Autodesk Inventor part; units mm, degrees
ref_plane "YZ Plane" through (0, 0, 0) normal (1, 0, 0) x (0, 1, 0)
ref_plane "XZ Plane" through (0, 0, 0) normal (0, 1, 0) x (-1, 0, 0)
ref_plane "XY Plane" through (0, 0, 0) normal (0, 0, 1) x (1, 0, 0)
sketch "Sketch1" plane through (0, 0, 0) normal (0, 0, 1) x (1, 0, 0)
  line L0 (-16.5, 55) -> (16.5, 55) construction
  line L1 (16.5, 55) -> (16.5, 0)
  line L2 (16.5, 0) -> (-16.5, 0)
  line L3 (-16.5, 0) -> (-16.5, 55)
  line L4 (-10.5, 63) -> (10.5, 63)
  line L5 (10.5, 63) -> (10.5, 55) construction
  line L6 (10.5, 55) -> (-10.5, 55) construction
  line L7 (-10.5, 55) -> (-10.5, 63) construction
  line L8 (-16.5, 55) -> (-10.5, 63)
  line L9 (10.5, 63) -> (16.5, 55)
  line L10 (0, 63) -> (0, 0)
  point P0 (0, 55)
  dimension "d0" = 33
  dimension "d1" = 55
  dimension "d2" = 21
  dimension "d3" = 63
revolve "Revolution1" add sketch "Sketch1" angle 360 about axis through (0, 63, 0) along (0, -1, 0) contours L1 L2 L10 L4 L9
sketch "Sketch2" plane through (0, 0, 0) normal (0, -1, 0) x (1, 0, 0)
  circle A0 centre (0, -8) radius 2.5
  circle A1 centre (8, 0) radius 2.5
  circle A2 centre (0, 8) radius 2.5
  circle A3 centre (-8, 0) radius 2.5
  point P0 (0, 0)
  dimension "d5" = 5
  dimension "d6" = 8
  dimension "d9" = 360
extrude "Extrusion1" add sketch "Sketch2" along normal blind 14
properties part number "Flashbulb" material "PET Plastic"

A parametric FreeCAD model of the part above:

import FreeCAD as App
import Part
import Sketcher

V = App.Vector


def add_polygon(sketch, points):
    """Adds a closed chain of lines whose ends are joined by coincident constraints."""
    first, n = sketch.GeometryCount, len(points)
    for a, b in zip(points, points[1:] + points[:1]):
        sketch.addGeometry(Part.LineSegment(App.Vector(*a, 0), App.Vector(*b, 0)), False)
    for i in range(n):
        sketch.addConstraint(Sketcher.Constraint("Coincident", first + i, 2, first + (i + 1) % n, 1))

doc = App.newDocument("Part")
params = doc.addObject("Spreadsheet::Sheet", "Params")
for row, (alias, value) in enumerate([
    ("sketch1_height", "55 mm"),
    ("sketch1_height2", "63 mm"),
    ("sketch1_length", "10 mm"),
    ("sketch1_width", "10.5 mm"),
    ("revolution_angle", "360 deg"),
    ("sketch2_diameter", "5 mm"),
    ("pad1_length", "14 mm"),
], start=1):
    params.set(f"A{row}", alias)
    params.set(f"B{row}", "=" + value)
    params.setAlias(f"B{row}", alias)

body = doc.addObject("PartDesign::Body", "Body")

sketch1 = body.newObject("Sketcher::SketchObject", "Sketch")
sketch1.AttachmentSupport = (doc.getObject("XY_Plane"), [""])
sketch1.MapMode = "FlatFace"
add_polygon(sketch1, [(16, 0), (16, 55), (10, 63), (0, 63), (0, 0)])
sketch1.addConstraint([
    Sketcher.Constraint("Vertical", 0),
    Sketcher.Constraint("Horizontal", 2),
    Sketcher.Constraint("Vertical", 3),
    Sketcher.Constraint("Horizontal", 4),
    Sketcher.Constraint("Coincident", 3, 2, -1, 1),
    Sketcher.Constraint("DistanceY", 0, 1, 0, 2, 55.0),
    Sketcher.Constraint("DistanceY", 3, 2, 3, 1, 63.0),
    Sketcher.Constraint("Distance", 1, 10.0),
    Sketcher.Constraint("DistanceX", 2, 2, 2, 1, 10.5),
])
sketch1.setExpression("Constraints[10]", "Params.sketch1_height")
sketch1.setExpression("Constraints[11]", "Params.sketch1_height2")
sketch1.setExpression("Constraints[12]", "Params.sketch1_length")
sketch1.setExpression("Constraints[13]", "Params.sketch1_width")
revolution = body.newObject("PartDesign::Revolution", "Revolution")
revolution.Profile = sketch1
revolution.ReferenceAxis = (sketch1, ["V_Axis"])
revolution.setExpression("Angle", "Params.revolution_angle")

sketch2 = body.newObject("Sketcher::SketchObject", "Sketch001")
sketch2.AttachmentSupport = (doc.getObject("XZ_Plane"), [""])
sketch2.MapMode = "FlatFace"
sketch2.addGeometry([
    Part.Circle(V(0, -8, 0), V(0, 0, 1), 2.5),
    Part.Circle(V(8, 0, 0), V(0, 0, 1), 2.5),
    Part.Circle(V(0, 8, 0), V(0, 0, 1), 2.5),
    Part.Circle(V(-8, 0, 0), V(0, 0, 1), 2.5),
], False)
sketch2.addConstraint([
    Sketcher.Constraint("Equal", 0, 1),
    Sketcher.Constraint("Equal", 1, 2),
    Sketcher.Constraint("Equal", 2, 3),
    Sketcher.Constraint("Symmetric", 0, 3, 2, 3, -1, 1),
    Sketcher.Constraint("Symmetric", 1, 3, 3, 3, -1, 1),
    Sketcher.Constraint("PointOnObject", 0, 3, -2),
    Sketcher.Constraint("PointOnObject", 1, 3, -1),
    Sketcher.Constraint("Diameter", 0, 5.0),
    Sketcher.Constraint("DistanceY", 0, 3, -1, 1, 8.0),
    Sketcher.Constraint("DistanceX", -1, 1, 1, 3, 8.0),
])
sketch2.setExpression("Constraints[7]", "Params.sketch2_diameter")
pad1 = body.newObject("PartDesign::Pad", "Pad")
pad1.Profile = sketch2
pad1.setExpression("Length", "Params.pad1_length")

doc.recompute()
